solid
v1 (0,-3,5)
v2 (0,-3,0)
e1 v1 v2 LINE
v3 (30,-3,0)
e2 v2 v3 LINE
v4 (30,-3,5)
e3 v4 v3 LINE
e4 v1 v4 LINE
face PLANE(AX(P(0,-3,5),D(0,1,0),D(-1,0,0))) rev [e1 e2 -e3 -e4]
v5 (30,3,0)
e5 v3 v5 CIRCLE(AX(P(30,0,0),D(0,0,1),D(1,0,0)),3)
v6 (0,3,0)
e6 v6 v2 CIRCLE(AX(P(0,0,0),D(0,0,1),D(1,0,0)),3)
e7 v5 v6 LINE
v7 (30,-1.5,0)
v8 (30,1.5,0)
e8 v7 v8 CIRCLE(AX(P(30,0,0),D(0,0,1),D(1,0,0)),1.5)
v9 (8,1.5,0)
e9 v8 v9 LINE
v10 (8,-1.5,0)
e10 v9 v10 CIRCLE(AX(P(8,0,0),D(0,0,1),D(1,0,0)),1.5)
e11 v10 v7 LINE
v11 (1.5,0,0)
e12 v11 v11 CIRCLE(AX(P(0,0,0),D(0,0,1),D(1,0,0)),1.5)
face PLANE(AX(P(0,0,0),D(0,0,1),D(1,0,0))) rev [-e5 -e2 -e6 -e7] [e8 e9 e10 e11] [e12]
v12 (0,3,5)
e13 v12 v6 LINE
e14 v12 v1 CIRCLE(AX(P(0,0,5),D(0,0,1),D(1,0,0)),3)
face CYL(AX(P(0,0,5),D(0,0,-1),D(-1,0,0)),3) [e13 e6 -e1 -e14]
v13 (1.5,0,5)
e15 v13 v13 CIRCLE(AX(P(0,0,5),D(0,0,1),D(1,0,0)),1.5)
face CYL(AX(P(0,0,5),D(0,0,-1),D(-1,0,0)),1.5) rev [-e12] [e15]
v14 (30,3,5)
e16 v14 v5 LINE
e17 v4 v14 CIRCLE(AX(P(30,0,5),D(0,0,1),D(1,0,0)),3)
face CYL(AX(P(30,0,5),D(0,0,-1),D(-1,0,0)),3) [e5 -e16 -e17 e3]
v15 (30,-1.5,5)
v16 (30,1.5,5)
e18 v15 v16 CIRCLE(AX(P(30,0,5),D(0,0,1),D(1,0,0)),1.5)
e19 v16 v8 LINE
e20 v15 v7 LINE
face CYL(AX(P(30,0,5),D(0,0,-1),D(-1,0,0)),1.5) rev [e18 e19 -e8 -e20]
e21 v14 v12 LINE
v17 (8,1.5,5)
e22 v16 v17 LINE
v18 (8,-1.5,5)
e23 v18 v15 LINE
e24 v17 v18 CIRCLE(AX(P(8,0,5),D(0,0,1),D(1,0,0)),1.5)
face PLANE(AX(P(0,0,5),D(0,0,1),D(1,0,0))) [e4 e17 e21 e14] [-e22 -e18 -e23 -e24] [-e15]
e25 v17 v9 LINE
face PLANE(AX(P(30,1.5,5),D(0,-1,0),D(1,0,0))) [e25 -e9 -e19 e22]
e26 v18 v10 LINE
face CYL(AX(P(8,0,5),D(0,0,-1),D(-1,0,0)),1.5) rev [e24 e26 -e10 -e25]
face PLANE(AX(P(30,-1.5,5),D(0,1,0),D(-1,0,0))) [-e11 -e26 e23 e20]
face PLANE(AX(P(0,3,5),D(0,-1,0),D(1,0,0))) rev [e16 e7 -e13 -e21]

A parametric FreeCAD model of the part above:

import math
import FreeCAD as App
import Part
import Sketcher
from FreeCAD import Vector

doc = App.newDocument("Part")
body = doc.addObject("PartDesign::Body", "Body")

# Sketch on XY plane
sketch1 = body.newObject("Sketcher::SketchObject", "Sketch")
sketch1.AttachmentSupport = (doc.getObject("XY_Plane"), [""])
sketch1.MapMode = "FlatFace"
sketch1.addGeometry(Part.LineSegment(Vector(30, 3, 0), Vector(0, 3, 0)), False)
sketch1.addGeometry(Part.ArcOfCircle(Part.Circle(Vector(0, 0, 0), Vector(0, 0, 1), 3), math.radians(90), math.radians(270)), False)
sketch1.addGeometry(Part.LineSegment(Vector(0, -3, 0), Vector(30, -3, 0)), False)
sketch1.addGeometry(Part.ArcOfCircle(Part.Circle(Vector(30, 0, 0), Vector(0, 0, 1), 3), math.radians(-90), math.radians(90)), False)
sketch1.addGeometry(Part.LineSegment(Vector(30, -1.5, 0), Vector(8, -1.5, 0)), False)
sketch1.addGeometry(Part.ArcOfCircle(Part.Circle(Vector(8, 0, 0), Vector(0, 0, 1), 1.5), math.radians(90), math.radians(270)), False)
sketch1.addGeometry(Part.LineSegment(Vector(8, 1.5, 0), Vector(30, 1.5, 0)), False)
sketch1.addGeometry(Part.ArcOfCircle(Part.Circle(Vector(30, 0, 0), Vector(0, 0, 1), 1.5), math.radians(-90), math.radians(90)), False)
sketch1.addGeometry(Part.Circle(Vector(0, 0, 0), Vector(0, 0, 1), 1.5), False)
sketch1.addConstraint(Sketcher.Constraint("Tangent", 0, 2, 1, 1))
sketch1.addConstraint(Sketcher.Constraint("Tangent", 1, 2, 2, 1))
sketch1.addConstraint(Sketcher.Constraint("Tangent", 2, 2, 3, 1))
sketch1.addConstraint(Sketcher.Constraint("Tangent", 3, 2, 0, 1))
sketch1.addConstraint(Sketcher.Constraint("Tangent", 4, 2, 5, 2))
sketch1.addConstraint(Sketcher.Constraint("Tangent", 5, 1, 6, 1))
sketch1.addConstraint(Sketcher.Constraint("Tangent", 6, 2, 7, 2))
sketch1.addConstraint(Sketcher.Constraint("Tangent", 7, 1, 4, 1))
sketch1.addConstraint(Sketcher.Constraint("Horizontal", 0))
sketch1.addConstraint(Sketcher.Constraint("Horizontal", 2))
sketch1.addConstraint(Sketcher.Constraint("Horizontal", 4))
sketch1.addConstraint(Sketcher.Constraint("Horizontal", 6))
sketch1.addConstraint(Sketcher.Constraint("Coincident", 1, 3, -1, 1))
sketch1.addConstraint(Sketcher.Constraint("Coincident", 8, 3, -1, 1))
sketch1.addConstraint(Sketcher.Constraint("Coincident", 7, 3, 3, 3))
sketch1.addConstraint(Sketcher.Constraint("Equal", 7, 8))
sketch1.addConstraint(Sketcher.Constraint("Diameter", 8, 3.0))
sketch1.addConstraint(Sketcher.Constraint("Radius", 1, 3.0))
sketch1.addConstraint(Sketcher.Constraint("DistanceX", 0, 2, 0, 1, 30.0))
sketch1.addConstraint(Sketcher.Constraint("DistanceX", 4, 2, 4, 1, 22.0))
pad1 = body.newObject("PartDesign::Pad", "Pad")
pad1.Profile = sketch1
pad1.Length = 5

doc.recompute()
